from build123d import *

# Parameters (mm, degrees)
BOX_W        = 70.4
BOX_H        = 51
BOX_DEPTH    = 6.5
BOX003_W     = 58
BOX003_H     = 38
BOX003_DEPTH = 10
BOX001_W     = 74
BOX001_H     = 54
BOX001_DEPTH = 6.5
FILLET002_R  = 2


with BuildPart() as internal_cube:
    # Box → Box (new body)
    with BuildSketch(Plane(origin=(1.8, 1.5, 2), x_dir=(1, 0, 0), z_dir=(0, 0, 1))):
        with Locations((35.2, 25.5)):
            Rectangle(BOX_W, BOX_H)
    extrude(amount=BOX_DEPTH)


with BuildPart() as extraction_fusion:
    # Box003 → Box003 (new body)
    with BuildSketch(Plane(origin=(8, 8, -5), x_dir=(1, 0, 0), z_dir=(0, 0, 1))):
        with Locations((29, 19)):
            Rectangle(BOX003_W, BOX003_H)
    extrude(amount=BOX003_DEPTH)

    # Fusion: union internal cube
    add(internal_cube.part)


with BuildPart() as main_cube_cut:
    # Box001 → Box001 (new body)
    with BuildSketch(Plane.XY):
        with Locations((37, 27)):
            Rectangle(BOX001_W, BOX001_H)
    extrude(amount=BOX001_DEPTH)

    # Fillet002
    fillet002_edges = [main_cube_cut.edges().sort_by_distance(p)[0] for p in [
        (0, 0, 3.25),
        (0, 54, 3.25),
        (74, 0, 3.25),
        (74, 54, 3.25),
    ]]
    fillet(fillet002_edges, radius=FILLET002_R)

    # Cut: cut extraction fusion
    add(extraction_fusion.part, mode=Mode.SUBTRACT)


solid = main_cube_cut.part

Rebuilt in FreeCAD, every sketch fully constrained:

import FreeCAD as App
import Part
import Sketcher
Q = App.Units.Quantity


def edges_at(feature, points):
    """Names of the edges that pass closest to the given points."""
    edges = feature.Shape.Edges
    near = lambda p: min(range(len(edges)), key=lambda i: edges[i].distToShape(Part.Vertex(*p))[0])
    return sorted({f"Edge{near(p) + 1}" for p in points})

doc = App.newDocument("Part")
body = doc.addObject("PartDesign::Body", "Body")

sketch1 = body.newObject("Sketcher::SketchObject", "Sketch")
sketch1.AttachmentSupport = (doc.getObject("XY_Plane"), [""])
sketch1.MapMode = "FlatFace"
sketch1.AttachmentOffset = App.Placement(App.Vector(0, 0, 2), App.Rotation())
sketch1.addGeometry(Part.LineSegment(App.Vector(1.8, 52.5, 0), App.Vector(1.8, 1.5, 0)), False)
sketch1.addGeometry(Part.LineSegment(App.Vector(1.8, 1.5, 0), App.Vector(72.2, 1.5, 0)), False)
sketch1.addGeometry(Part.LineSegment(App.Vector(72.2, 1.5, 0), App.Vector(72.2, 52.5, 0)), False)
sketch1.addGeometry(Part.LineSegment(App.Vector(72.2, 52.5, 0), App.Vector(1.8, 52.5, 0)), False)
sketch1.addConstraint(Sketcher.Constraint("Coincident", 0, 2, 1, 1))
sketch1.addConstraint(Sketcher.Constraint("Coincident", 1, 2, 2, 1))
sketch1.addConstraint(Sketcher.Constraint("Coincident", 2, 2, 3, 1))
sketch1.addConstraint(Sketcher.Constraint("Coincident", 3, 2, 0, 1))
sketch1.addConstraint(Sketcher.Constraint("Vertical", 0))
sketch1.addConstraint(Sketcher.Constraint("Horizontal", 1))
sketch1.addConstraint(Sketcher.Constraint("Vertical", 2))
sketch1.addConstraint(Sketcher.Constraint("Horizontal", 3))
sketch1.addConstraint(Sketcher.Constraint("DistanceY", 0, 2, 0, 1, Q("51 mm")))
sketch1.addConstraint(Sketcher.Constraint("DistanceX", 1, 1, 1, 2, Q("70.4 mm")))
sketch1.addConstraint(Sketcher.Constraint("DistanceX", -1, 1, 0, 2, Q("1.8 mm")))
sketch1.addConstraint(Sketcher.Constraint("DistanceY", -1, 1, 0, 2, Q("1.5 mm")))
pad1 = body.newObject("PartDesign::Pad", "Pad")
pad1.Profile = sketch1
pad1.Length = 6.5
body2 = doc.addObject("PartDesign::Body", "Body001")

sketch2 = body2.newObject("Sketcher::SketchObject", "Sketch001")
sketch2.AttachmentSupport = (doc.getObject("XY_Plane001"), [""])
sketch2.MapMode = "FlatFace"
sketch2.AttachmentOffset = App.Placement(App.Vector(0, 0, -5), App.Rotation())
sketch2.addGeometry(Part.LineSegment(App.Vector(8, 46, 0), App.Vector(8, 8, 0)), False)
sketch2.addGeometry(Part.LineSegment(App.Vector(8, 8, 0), App.Vector(66, 8, 0)), False)
sketch2.addGeometry(Part.LineSegment(App.Vector(66, 8, 0), App.Vector(66, 46, 0)), False)
sketch2.addGeometry(Part.LineSegment(App.Vector(66, 46, 0), App.Vector(8, 46, 0)), False)
sketch2.addConstraint(Sketcher.Constraint("Coincident", 0, 2, 1, 1))
sketch2.addConstraint(Sketcher.Constraint("Coincident", 1, 2, 2, 1))
sketch2.addConstraint(Sketcher.Constraint("Coincident", 2, 2, 3, 1))
sketch2.addConstraint(Sketcher.Constraint("Coincident", 3, 2, 0, 1))
sketch2.addConstraint(Sketcher.Constraint("Vertical", 0))
sketch2.addConstraint(Sketcher.Constraint("Horizontal", 1))
sketch2.addConstraint(Sketcher.Constraint("Vertical", 2))
sketch2.addConstraint(Sketcher.Constraint("Horizontal", 3))
sketch2.addConstraint(Sketcher.Constraint("DistanceX", 1, 1, 1, 2, Q("58 mm")))
sketch2.addConstraint(Sketcher.Constraint("DistanceY", 0, 2, 0, 1, Q("38 mm")))
sketch2.addConstraint(Sketcher.Constraint("DistanceX", -1, 1, 0, 2, Q("8 mm")))
sketch2.addConstraint(Sketcher.Constraint("DistanceY", -1, 1, 0, 2, Q("8 mm")))
pad2 = body2.newObject("PartDesign::Pad", "Pad001")
pad2.Profile = sketch2
pad2.Length = 10
doc.recompute()

boolean = body2.newObject("PartDesign::Boolean", "Boolean")
boolean.Type = "Fuse"
boolean.addObjects([body])
body3 = doc.addObject("PartDesign::Body", "Body002")

sketch3 = body3.newObject("Sketcher::SketchObject", "Sketch002")
sketch3.AttachmentSupport = (doc.getObject("XY_Plane002"), [""])
sketch3.MapMode = "FlatFace"
sketch3.addGeometry(Part.LineSegment(App.Vector(0, 54, 0), App.Vector(0, 0, 0)), False)
sketch3.addGeometry(Part.LineSegment(App.Vector(0, 0, 0), App.Vector(74, 0, 0)), False)
sketch3.addGeometry(Part.LineSegment(App.Vector(74, 0, 0), App.Vector(74, 54, 0)), False)
sketch3.addGeometry(Part.LineSegment(App.Vector(74, 54, 0), App.Vector(0, 54, 0)), False)
sketch3.addConstraint(Sketcher.Constraint("Coincident", 0, 2, 1, 1))
sketch3.addConstraint(Sketcher.Constraint("Coincident", 1, 2, 2, 1))
sketch3.addConstraint(Sketcher.Constraint("Coincident", 2, 2, 3, 1))
sketch3.addConstraint(Sketcher.Constraint("Coincident", 3, 2, 0, 1))
sketch3.addConstraint(Sketcher.Constraint("Vertical", 0))
sketch3.addConstraint(Sketcher.Constraint("Horizontal", 1))
sketch3.addConstraint(Sketcher.Constraint("Vertical", 2))
sketch3.addConstraint(Sketcher.Constraint("Horizontal", 3))
sketch3.addConstraint(Sketcher.Constraint("Coincident", 0, 2, -1, 1))
sketch3.addConstraint(Sketcher.Constraint("DistanceX", 1, 1, 1, 2, Q("74 mm")))
sketch3.addConstraint(Sketcher.Constraint("DistanceY", 0, 2, 0, 1, Q("54 mm")))
pad3 = body3.newObject("PartDesign::Pad", "Pad002")
pad3.Profile = sketch3
pad3.Length = 6.5
doc.recompute()

fillet = body3.newObject("PartDesign::Fillet", "Fillet")
fillet.Base = (pad3, edges_at(pad3, [
    (0, 0, 3.25),
    (0, 54, 3.25),
    (74, 0, 3.25),
    (74, 54, 3.25),
]))
fillet.Radius = 2
doc.recompute()

boolean2 = body3.newObject("PartDesign::Boolean", "Boolean001")
boolean2.Type = "Cut"
boolean2.addObjects([body2])

doc.recompute()
